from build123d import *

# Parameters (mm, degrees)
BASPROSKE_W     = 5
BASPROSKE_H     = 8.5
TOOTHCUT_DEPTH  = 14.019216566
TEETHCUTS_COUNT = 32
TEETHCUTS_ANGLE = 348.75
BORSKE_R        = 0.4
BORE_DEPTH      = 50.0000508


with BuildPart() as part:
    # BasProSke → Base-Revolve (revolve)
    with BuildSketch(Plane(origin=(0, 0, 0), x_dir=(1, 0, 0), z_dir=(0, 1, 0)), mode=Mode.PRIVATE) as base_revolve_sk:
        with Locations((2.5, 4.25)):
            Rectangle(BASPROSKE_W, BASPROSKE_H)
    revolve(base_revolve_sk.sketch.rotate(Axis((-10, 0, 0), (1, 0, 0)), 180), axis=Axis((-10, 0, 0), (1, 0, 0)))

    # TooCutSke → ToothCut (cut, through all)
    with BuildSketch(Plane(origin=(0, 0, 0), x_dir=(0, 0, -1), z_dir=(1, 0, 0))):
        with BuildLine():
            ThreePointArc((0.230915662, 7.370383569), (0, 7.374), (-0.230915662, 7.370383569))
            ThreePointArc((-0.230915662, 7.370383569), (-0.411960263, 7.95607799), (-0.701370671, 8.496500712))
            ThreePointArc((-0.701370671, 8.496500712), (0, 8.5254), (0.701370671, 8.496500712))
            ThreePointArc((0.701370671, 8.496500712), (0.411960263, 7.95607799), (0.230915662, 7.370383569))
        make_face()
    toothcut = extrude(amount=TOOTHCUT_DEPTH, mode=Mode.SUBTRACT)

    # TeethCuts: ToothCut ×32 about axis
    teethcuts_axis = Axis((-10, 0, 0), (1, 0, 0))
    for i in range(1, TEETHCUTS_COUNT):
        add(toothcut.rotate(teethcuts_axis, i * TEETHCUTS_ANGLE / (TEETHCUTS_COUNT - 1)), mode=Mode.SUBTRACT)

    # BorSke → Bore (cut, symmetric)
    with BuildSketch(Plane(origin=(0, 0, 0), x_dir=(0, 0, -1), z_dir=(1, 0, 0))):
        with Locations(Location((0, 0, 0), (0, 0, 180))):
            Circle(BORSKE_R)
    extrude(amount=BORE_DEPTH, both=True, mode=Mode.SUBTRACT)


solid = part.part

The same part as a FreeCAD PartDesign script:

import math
import FreeCAD as App
import Part
import Sketcher
Q = App.Units.Quantity


def add_polygon(sketch, points):
    """Adds a closed chain of lines whose ends are joined by coincident constraints."""
    first, n = sketch.GeometryCount, len(points)
    for a, b in zip(points, points[1:] + points[:1]):
        sketch.addGeometry(Part.LineSegment(App.Vector(*a, 0), App.Vector(*b, 0)), False)
    for i in range(n):
        sketch.addConstraint(Sketcher.Constraint("Coincident", first + i, 2, first + (i + 1) % n, 1))

doc = App.newDocument("Part")
body = doc.addObject("PartDesign::Body", "Body")

# Sketch on XZ plane
sketch1 = body.newObject("Sketcher::SketchObject", "Sketch")
sketch1.AttachmentSupport = (doc.getObject("XZ_Plane"), [""])
sketch1.MapMode = "FlatFace"
add_polygon(sketch1, [(0, -8.5), (0, 0), (5, 0), (5, -8.5)])  # lines 0-3
sketch1.addConstraint([
    Sketcher.Constraint("Vertical", 0),
    Sketcher.Constraint("Horizontal", 1),
    Sketcher.Constraint("Vertical", 2),
    Sketcher.Constraint("Horizontal", 3),
    Sketcher.Constraint("Coincident", 0, 2, -1, 1),
    Sketcher.Constraint("DistanceX", 1, 1, 1, 2, Q("5 mm")),
    Sketcher.Constraint("DistanceY", 0, 1, 0, 2, Q("8.5 mm")),
])
revolution = body.newObject("PartDesign::Revolution", "Revolution")
revolution.Profile = sketch1
revolution.ReferenceAxis = (sketch1, ["H_Axis"])
revolution.Angle = 360

# Sketch on YZ plane
sketch2 = body.newObject("Sketcher::SketchObject", "Sketch001")
sketch2.AttachmentSupport = (doc.getObject("YZ_Plane"), [""])
sketch2.MapMode = "FlatFace"
sketch2.addGeometry([
    Part.ArcOfCircle(Part.Circle(App.Vector(0, 0, 0), App.Vector(0, 0, 1), 7.374), math.radians(-1.794502), math.radians(1.794502)),
    Part.ArcOfCircle(Part.Circle(App.Vector(6.72254, -3.364651, 0), App.Vector(0, 0, 1), 3.2), math.radians(56.333168), math.radians(78.31967)),
    Part.ArcOfCircle(Part.Circle(App.Vector(0, 0, 0), App.Vector(0, 0, 1), 8.5254), math.radians(-4.718963), math.radians(4.718963)),
    Part.ArcOfCircle(Part.Circle(App.Vector(6.72254, 3.364651, 0), App.Vector(0, 0, 1), 3.2), math.radians(-78.31967), math.radians(-56.333168)),
], False)
sketch2.addConstraint([
    Sketcher.Constraint("Coincident", 0, 1, 1, 2),
    Sketcher.Constraint("Coincident", 1, 1, 2, 1),
    Sketcher.Constraint("Coincident", 2, 2, 3, 2),
    Sketcher.Constraint("Coincident", 3, 1, 0, 2),
    Sketcher.Constraint("Coincident", 0, 3, -1, 1),
    Sketcher.Constraint("Coincident", 2, 3, -1, 1),
    Sketcher.Constraint("Equal", 1, 3),
    Sketcher.Constraint("Symmetric", 1, 3, 3, 3, -1),
    Sketcher.Constraint("Radius", 1, Q("3.2 mm")),
    Sketcher.Constraint("Radius", 0, Q("7.374 mm")),
    Sketcher.Constraint("Radius", 2, Q("8.5254 mm")),
    Sketcher.Constraint("DistanceX", -1, 1, 1, 1, Q("8.496501 mm")),
    Sketcher.Constraint("DistanceX", -1, 1, 1, 3, Q("6.72254 mm")),
])
pocket1 = body.newObject("PartDesign::Pocket", "Pocket")
pocket1.Profile = sketch2
pocket1.Type = "ThroughAll"
pocket1.Reversed = True
doc.recompute()

polarpattern = body.newObject("PartDesign::PolarPattern", "PolarPattern")
polarpattern.Originals = [pocket1]
polarpattern.Axis = (doc.getObject("X_Axis"), [""])
polarpattern.Angle = 360
polarpattern.Occurrences = 32
body.Tip = polarpattern

# Sketch on YZ plane
sketch3 = body.newObject("Sketcher::SketchObject", "Sketch002")
sketch3.AttachmentSupport = (doc.getObject("YZ_Plane"), [""])
sketch3.MapMode = "FlatFace"
sketch3.addGeometry(Part.Circle(App.Vector(0, 0, 0), App.Vector(0, 0, 1), 0.4), False)
sketch3.addConstraint([
    Sketcher.Constraint("Coincident", 0, 3, -1, 1),
    Sketcher.Constraint("Diameter", 0, Q("0.8 mm")),
])
pocket2 = body.newObject("PartDesign::Pocket", "Pocket001")
pocket2.Profile = sketch3
pocket2.Length = 100.000102
pocket2.Midplane = True

doc.recompute()
